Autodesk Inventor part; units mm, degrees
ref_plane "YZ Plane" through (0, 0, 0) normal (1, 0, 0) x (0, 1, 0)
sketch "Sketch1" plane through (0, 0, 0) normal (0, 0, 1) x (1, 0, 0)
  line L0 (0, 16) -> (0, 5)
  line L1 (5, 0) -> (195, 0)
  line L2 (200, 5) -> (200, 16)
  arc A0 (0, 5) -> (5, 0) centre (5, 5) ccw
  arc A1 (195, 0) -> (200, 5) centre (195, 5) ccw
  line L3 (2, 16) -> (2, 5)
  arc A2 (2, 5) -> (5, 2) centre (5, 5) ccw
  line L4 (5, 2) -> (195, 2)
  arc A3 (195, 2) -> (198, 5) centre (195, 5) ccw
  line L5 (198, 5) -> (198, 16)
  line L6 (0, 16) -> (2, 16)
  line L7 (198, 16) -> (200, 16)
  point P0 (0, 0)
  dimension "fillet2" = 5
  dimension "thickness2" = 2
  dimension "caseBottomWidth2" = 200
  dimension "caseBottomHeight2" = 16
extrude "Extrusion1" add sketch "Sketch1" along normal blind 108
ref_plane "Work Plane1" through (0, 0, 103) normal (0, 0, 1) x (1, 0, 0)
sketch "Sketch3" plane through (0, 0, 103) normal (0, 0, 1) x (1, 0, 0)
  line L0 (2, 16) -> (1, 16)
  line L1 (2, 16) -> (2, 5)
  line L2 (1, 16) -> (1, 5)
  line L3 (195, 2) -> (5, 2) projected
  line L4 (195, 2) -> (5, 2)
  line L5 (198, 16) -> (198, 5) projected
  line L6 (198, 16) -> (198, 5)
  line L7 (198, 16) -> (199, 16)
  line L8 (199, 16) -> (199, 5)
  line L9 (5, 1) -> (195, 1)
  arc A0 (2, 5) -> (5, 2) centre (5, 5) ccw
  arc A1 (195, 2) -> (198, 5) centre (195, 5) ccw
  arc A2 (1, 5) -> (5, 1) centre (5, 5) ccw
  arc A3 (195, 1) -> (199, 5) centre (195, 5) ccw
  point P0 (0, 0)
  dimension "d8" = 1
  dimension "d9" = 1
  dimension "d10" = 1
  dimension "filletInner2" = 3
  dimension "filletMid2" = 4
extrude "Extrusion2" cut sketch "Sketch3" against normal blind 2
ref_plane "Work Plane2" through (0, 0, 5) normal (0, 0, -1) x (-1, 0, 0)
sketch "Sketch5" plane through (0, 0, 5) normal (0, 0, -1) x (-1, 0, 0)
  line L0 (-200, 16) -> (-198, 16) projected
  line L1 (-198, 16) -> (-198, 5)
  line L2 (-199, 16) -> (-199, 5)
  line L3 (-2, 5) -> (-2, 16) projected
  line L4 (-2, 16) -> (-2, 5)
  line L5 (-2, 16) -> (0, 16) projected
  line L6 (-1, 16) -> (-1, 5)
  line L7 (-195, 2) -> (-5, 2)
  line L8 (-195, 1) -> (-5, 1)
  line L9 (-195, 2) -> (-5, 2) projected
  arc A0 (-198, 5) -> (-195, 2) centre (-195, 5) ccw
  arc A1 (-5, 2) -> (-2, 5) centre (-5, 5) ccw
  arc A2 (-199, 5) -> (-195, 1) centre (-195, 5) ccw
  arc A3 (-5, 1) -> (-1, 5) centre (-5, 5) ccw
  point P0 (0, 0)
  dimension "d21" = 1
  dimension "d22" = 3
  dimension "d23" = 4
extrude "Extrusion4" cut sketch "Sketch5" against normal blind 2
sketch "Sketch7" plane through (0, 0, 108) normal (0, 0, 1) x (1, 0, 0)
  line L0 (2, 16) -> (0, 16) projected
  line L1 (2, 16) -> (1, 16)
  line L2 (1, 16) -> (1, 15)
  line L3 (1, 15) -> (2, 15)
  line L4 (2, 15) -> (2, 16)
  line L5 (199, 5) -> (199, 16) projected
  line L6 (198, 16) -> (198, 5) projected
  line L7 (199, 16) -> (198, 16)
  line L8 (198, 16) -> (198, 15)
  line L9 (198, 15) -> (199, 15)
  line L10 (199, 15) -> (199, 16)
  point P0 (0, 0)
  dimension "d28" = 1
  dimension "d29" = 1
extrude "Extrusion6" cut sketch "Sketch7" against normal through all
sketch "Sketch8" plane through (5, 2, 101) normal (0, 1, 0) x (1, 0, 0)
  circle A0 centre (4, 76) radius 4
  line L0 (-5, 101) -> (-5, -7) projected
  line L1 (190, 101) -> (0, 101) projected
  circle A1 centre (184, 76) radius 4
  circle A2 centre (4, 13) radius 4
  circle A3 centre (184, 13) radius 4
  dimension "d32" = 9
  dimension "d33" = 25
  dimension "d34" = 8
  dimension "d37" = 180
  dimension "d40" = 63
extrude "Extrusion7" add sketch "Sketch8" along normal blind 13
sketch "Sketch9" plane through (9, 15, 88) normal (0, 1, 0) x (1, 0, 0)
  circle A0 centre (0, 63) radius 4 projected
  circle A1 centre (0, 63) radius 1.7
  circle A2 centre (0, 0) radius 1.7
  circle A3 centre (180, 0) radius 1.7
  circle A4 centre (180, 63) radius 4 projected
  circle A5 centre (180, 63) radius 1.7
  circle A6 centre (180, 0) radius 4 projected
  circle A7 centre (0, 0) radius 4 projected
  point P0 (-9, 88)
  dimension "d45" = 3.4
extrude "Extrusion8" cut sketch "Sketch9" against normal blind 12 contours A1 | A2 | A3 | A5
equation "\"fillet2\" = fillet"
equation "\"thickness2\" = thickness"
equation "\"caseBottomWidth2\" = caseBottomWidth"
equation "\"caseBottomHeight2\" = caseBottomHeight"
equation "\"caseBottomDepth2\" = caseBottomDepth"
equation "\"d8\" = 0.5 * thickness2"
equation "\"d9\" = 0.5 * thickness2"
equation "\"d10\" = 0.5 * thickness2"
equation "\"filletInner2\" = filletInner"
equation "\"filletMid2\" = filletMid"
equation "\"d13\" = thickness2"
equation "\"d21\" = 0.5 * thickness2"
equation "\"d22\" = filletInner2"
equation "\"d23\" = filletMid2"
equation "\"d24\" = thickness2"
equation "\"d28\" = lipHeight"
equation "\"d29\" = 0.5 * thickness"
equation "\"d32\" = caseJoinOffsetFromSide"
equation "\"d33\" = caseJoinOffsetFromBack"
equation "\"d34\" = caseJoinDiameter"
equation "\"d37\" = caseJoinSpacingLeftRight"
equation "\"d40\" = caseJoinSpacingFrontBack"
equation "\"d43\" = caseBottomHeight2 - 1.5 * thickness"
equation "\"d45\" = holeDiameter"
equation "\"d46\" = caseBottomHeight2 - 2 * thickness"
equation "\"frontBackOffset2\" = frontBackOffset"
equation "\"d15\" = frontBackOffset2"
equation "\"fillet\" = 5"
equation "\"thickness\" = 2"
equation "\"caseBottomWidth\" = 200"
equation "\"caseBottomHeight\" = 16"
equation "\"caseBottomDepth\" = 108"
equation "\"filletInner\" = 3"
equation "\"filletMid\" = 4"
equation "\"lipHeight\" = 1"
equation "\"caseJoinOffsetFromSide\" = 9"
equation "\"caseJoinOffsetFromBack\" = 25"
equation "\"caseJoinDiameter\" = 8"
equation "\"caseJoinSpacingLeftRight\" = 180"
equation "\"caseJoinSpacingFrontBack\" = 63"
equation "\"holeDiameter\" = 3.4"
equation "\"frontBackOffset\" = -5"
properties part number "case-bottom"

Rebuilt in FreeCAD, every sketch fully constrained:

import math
import FreeCAD as App
import Part
import Sketcher

V = App.Vector
Q = App.Units.Quantity

doc = App.newDocument("Part")
body = doc.addObject("PartDesign::Body", "Body")

sketch1 = body.newObject("Sketcher::SketchObject", "Sketch")
sketch1.AttachmentSupport = (doc.getObject("XY_Plane"), [""])
sketch1.MapMode = "FlatFace"
sketch1.addGeometry(Part.LineSegment(V(2, 16, 0), V(0, 16, 0)), False)
sketch1.addGeometry(Part.LineSegment(V(0, 16, 0), V(0, 5, 0)), False)
sketch1.addGeometry(Part.ArcOfCircle(Part.Circle(V(5, 5, 0), V(0, 0, 1), 5), math.radians(180), math.radians(270)), False)
sketch1.addGeometry(Part.LineSegment(V(5, 0, 0), V(195, 0, 0)), False)
sketch1.addGeometry(Part.ArcOfCircle(Part.Circle(V(195, 5, 0), V(0, 0, 1), 5), math.radians(-90), math.radians(0)), False)
sketch1.addGeometry(Part.LineSegment(V(200, 5, 0), V(200, 16, 0)), False)
sketch1.addGeometry(Part.LineSegment(V(200, 16, 0), V(198, 16, 0)), False)
sketch1.addGeometry(Part.LineSegment(V(198, 16, 0), V(198, 5, 0)), False)
sketch1.addGeometry(Part.ArcOfCircle(Part.Circle(V(195, 5, 0), V(0, 0, 1), 3), math.radians(-90), math.radians(0)), False)
sketch1.addGeometry(Part.LineSegment(V(195, 2, 0), V(5, 2, 0)), False)
sketch1.addGeometry(Part.ArcOfCircle(Part.Circle(V(5, 5, 0), V(0, 0, 1), 3), math.radians(180), math.radians(270)), False)
sketch1.addGeometry(Part.LineSegment(V(2, 5, 0), V(2, 16, 0)), False)
sketch1.addConstraint(Sketcher.Constraint("Coincident", 0, 2, 1, 1))
sketch1.addConstraint(Sketcher.Constraint("Tangent", 1, 2, 2, 1))
sketch1.addConstraint(Sketcher.Constraint("Tangent", 2, 2, 3, 1))
sketch1.addConstraint(Sketcher.Constraint("Tangent", 3, 2, 4, 1))
sketch1.addConstraint(Sketcher.Constraint("Tangent", 4, 2, 5, 1))
sketch1.addConstraint(Sketcher.Constraint("Coincident", 5, 2, 6, 1))
sketch1.addConstraint(Sketcher.Constraint("Coincident", 6, 2, 7, 1))
sketch1.addConstraint(Sketcher.Constraint("Tangent", 7, 2, 8, 2))
sketch1.addConstraint(Sketcher.Constraint("Tangent", 8, 1, 9, 1))
sketch1.addConstraint(Sketcher.Constraint("Tangent", 9, 2, 10, 2))
sketch1.addConstraint(Sketcher.Constraint("Tangent", 10, 1, 11, 1))
sketch1.addConstraint(Sketcher.Constraint("Coincident", 11, 2, 0, 1))
sketch1.addConstraint(Sketcher.Constraint("Horizontal", 0))
sketch1.addConstraint(Sketcher.Constraint("Vertical", 1))
sketch1.addConstraint(Sketcher.Constraint("Horizontal", 3))
sketch1.addConstraint(Sketcher.Constraint("Vertical", 5))
sketch1.addConstraint(Sketcher.Constraint("Horizontal", 6))
sketch1.addConstraint(Sketcher.Constraint("Vertical", 7))
sketch1.addConstraint(Sketcher.Constraint("Horizontal", 9))
sketch1.addConstraint(Sketcher.Constraint("Vertical", 11))
sketch1.addConstraint(Sketcher.Constraint("Coincident", 8, 3, 4, 3))
sketch1.addConstraint(Sketcher.Constraint("Coincident", 10, 3, 2, 3))
sketch1.addConstraint(Sketcher.Constraint("Equal", 2, 4))
sketch1.addConstraint(Sketcher.Constraint("PointOnObject", 0, 2, -2))
sketch1.addConstraint(Sketcher.Constraint("PointOnObject", 2, 2, -1))
sketch1.addConstraint(Sketcher.Constraint("Horizontal", 0, 2, 5, 2))
sketch1.addConstraint(Sketcher.Constraint("Radius", 2, Q("5 mm")))
sketch1.addConstraint(Sketcher.Constraint("DistanceX", 0, 2, 0, 1, Q("2 mm")))
sketch1.addConstraint(Sketcher.Constraint("DistanceY", -1, 1, 0, 2, Q("16 mm")))
sketch1.addConstraint(Sketcher.Constraint("DistanceX", -1, 1, 4, 2, Q("200 mm")))
pad1 = body.newObject("PartDesign::Pad", "Pad")
pad1.Profile = sketch1
pad1.Length = 108

sketch2 = body.newObject("Sketcher::SketchObject", "Sketch001")
sketch2.AttachmentSupport = (doc.getObject("XY_Plane"), [""])
sketch2.MapMode = "FlatFace"
sketch2.AttachmentOffset = App.Placement(V(0, 0, 103), App.Rotation())
sketch2.addGeometry(Part.LineSegment(V(2, 5, 0), V(2, 16, 0)), False)
sketch2.addGeometry(Part.LineSegment(V(2, 16, 0), V(1, 16, 0)), False)
sketch2.addGeometry(Part.LineSegment(V(1, 16, 0), V(1, 5, 0)), False)
sketch2.addGeometry(Part.ArcOfCircle(Part.Circle(V(5, 5, 0), V(0, 0, 1), 4), math.radians(180), math.radians(270)), False)
sketch2.addGeometry(Part.LineSegment(V(5, 1, 0), V(195, 1, 0)), False)
sketch2.addGeometry(Part.ArcOfCircle(Part.Circle(V(195, 5, 0), V(0, 0, 1), 4), math.radians(-90), math.radians(0)), False)
sketch2.addGeometry(Part.LineSegment(V(199, 5, 0), V(199, 16, 0)), False)
sketch2.addGeometry(Part.LineSegment(V(199, 16, 0), V(198, 16, 0)), False)
sketch2.addGeometry(Part.LineSegment(V(198, 16, 0), V(198, 5, 0)), False)
sketch2.addGeometry(Part.ArcOfCircle(Part.Circle(V(195, 5, 0), V(0, 0, 1), 3), math.radians(-90), math.radians(0)), False)
sketch2.addGeometry(Part.LineSegment(V(195, 2, 0), V(5, 2, 0)), False)
sketch2.addGeometry(Part.ArcOfCircle(Part.Circle(V(5, 5, 0), V(0, 0, 1), 3), math.radians(180), math.radians(270)), False)
sketch2.addConstraint(Sketcher.Constraint("Coincident", 0, 2, 1, 1))
sketch2.addConstraint(Sketcher.Constraint("Coincident", 1, 2, 2, 1))
sketch2.addConstraint(Sketcher.Constraint("Tangent", 2, 2, 3, 1))
sketch2.addConstraint(Sketcher.Constraint("Tangent", 3, 2, 4, 1))
sketch2.addConstraint(Sketcher.Constraint("Tangent", 4, 2, 5, 1))
sketch2.addConstraint(Sketcher.Constraint("Tangent", 5, 2, 6, 1))
sketch2.addConstraint(Sketcher.Constraint("Coincident", 6, 2, 7, 1))
sketch2.addConstraint(Sketcher.Constraint("Coincident", 7, 2, 8, 1))
sketch2.addConstraint(Sketcher.Constraint("Tangent", 8, 2, 9, 2))
sketch2.addConstraint(Sketcher.Constraint("Tangent", 9, 1, 10, 1))
sketch2.addConstraint(Sketcher.Constraint("Tangent", 10, 2, 11, 2))
sketch2.addConstraint(Sketcher.Constraint("Tangent", 11, 1, 0, 1))
sketch2.addConstraint(Sketcher.Constraint("Vertical", 0))
sketch2.addConstraint(Sketcher.Constraint("Horizontal", 1))
sketch2.addConstraint(Sketcher.Constraint("Vertical", 2))
sketch2.addConstraint(Sketcher.Constraint("Horizontal", 4))
sketch2.addConstraint(Sketcher.Constraint("Vertical", 6))
sketch2.addConstraint(Sketcher.Constraint("Horizontal", 7))
sketch2.addConstraint(Sketcher.Constraint("Vertical", 8))
sketch2.addConstraint(Sketcher.Constraint("Horizontal", 10))
sketch2.addConstraint(Sketcher.Constraint("Coincident", 9, 3, 5, 3))
sketch2.addConstraint(Sketcher.Constraint("Coincident", 11, 3, 3, 3))
sketch2.addConstraint(Sketcher.Constraint("Equal", 3, 5))
sketch2.addConstraint(Sketcher.Constraint("Horizontal", 1, 2, 6, 2))
sketch2.addConstraint(Sketcher.Constraint("Radius", 3, Q("4 mm")))
sketch2.addConstraint(Sketcher.Constraint("Radius", 9, Q("3 mm")))
sketch2.addConstraint(Sketcher.Constraint("DistanceX", -1, 1, 1, 2, Q("1 mm")))
sketch2.addConstraint(Sketcher.Constraint("DistanceY", -1, 1, 3, 2, Q("1 mm")))
sketch2.addConstraint(Sketcher.Constraint("DistanceX", 4, 1, 4, 2, Q("190 mm")))
sketch2.addConstraint(Sketcher.Constraint("DistanceY", 0, 1, 0, 2, Q("11 mm")))
pocket1 = body.newObject("PartDesign::Pocket", "Pocket")
pocket1.Profile = sketch2
pocket1.Length = 2

sketch3 = body.newObject("Sketcher::SketchObject", "Sketch002")
sketch3.AttachmentSupport = (doc.getObject("XY_Plane"), [""])
sketch3.MapMode = "FlatFace"
sketch3.AttachmentOffset = App.Placement(V(0, 0, 5), App.Rotation())
sketch3.addGeometry(Part.LineSegment(V(198, 16, 0), V(199, 16, 0)), False)
sketch3.addGeometry(Part.LineSegment(V(199, 16, 0), V(199, 5, 0)), False)
sketch3.addGeometry(Part.ArcOfCircle(Part.Circle(V(195, 5, 0), V(0, 0, 1), 4), math.radians(-90), math.radians(0)), False)
sketch3.addGeometry(Part.LineSegment(V(195, 1, 0), V(5, 1, 0)), False)
sketch3.addGeometry(Part.ArcOfCircle(Part.Circle(V(5, 5, 0), V(0, 0, 1), 4), math.radians(180), math.radians(270)), False)
sketch3.addGeometry(Part.LineSegment(V(1, 5, 0), V(1, 16, 0)), False)
sketch3.addGeometry(Part.LineSegment(V(1, 16, 0), V(2, 16, 0)), False)
sketch3.addGeometry(Part.LineSegment(V(2, 16, 0), V(2, 5, 0)), False)
sketch3.addGeometry(Part.ArcOfCircle(Part.Circle(V(5, 5, 0), V(0, 0, 1), 3), math.radians(180), math.radians(270)), False)
sketch3.addGeometry(Part.LineSegment(V(5, 2, 0), V(195, 2, 0)), False)
sketch3.addGeometry(Part.ArcOfCircle(Part.Circle(V(195, 5, 0), V(0, 0, 1), 3), math.radians(-90), math.radians(0)), False)
sketch3.addGeometry(Part.LineSegment(V(198, 5, 0), V(198, 16, 0)), False)
sketch3.addConstraint(Sketcher.Constraint("Coincident", 0, 2, 1, 1))
sketch3.addConstraint(Sketcher.Constraint("Tangent", 1, 2, 2, 2))
sketch3.addConstraint(Sketcher.Constraint("Tangent", 2, 1, 3, 1))
sketch3.addConstraint(Sketcher.Constraint("Tangent", 3, 2, 4, 2))
sketch3.addConstraint(Sketcher.Constraint("Tangent", 4, 1, 5, 1))
sketch3.addConstraint(Sketcher.Constraint("Coincident", 5, 2, 6, 1))
sketch3.addConstraint(Sketcher.Constraint("Coincident", 6, 2, 7, 1))
sketch3.addConstraint(Sketcher.Constraint("Tangent", 7, 2, 8, 1))
sketch3.addConstraint(Sketcher.Constraint("Tangent", 8, 2, 9, 1))
sketch3.addConstraint(Sketcher.Constraint("Tangent", 9, 2, 10, 1))
sketch3.addConstraint(Sketcher.Constraint("Tangent", 10, 2, 11, 1))
sketch3.addConstraint(Sketcher.Constraint("Coincident", 11, 2, 0, 1))
sketch3.addConstraint(Sketcher.Constraint("Horizontal", 0))
sketch3.addConstraint(Sketcher.Constraint("Vertical", 1))
sketch3.addConstraint(Sketcher.Constraint("Horizontal", 3))
sketch3.addConstraint(Sketcher.Constraint("Vertical", 5))
sketch3.addConstraint(Sketcher.Constraint("Horizontal", 6))
sketch3.addConstraint(Sketcher.Constraint("Vertical", 7))
sketch3.addConstraint(Sketcher.Constraint("Horizontal", 9))
sketch3.addConstraint(Sketcher.Constraint("Vertical", 11))
sketch3.addConstraint(Sketcher.Constraint("Coincident", 8, 3, 4, 3))
sketch3.addConstraint(Sketcher.Constraint("Coincident", 10, 3, 2, 3))
sketch3.addConstraint(Sketcher.Constraint("Equal", 2, 4))
sketch3.addConstraint(Sketcher.Constraint("Horizontal", 0, 2, 5, 2))
sketch3.addConstraint(Sketcher.Constraint("Radius", 2, Q("4 mm")))
sketch3.addConstraint(Sketcher.Constraint("Radius", 8, Q("3 mm")))
sketch3.addConstraint(Sketcher.Constraint("DistanceY", -1, 1, 2, 1, Q("1 mm")))
sketch3.addConstraint(Sketcher.Constraint("DistanceX", -1, 1, 4, 1, Q("1 mm")))
sketch3.addConstraint(Sketcher.Constraint("DistanceX", 3, 2, 3, 1, Q("190 mm")))
sketch3.addConstraint(Sketcher.Constraint("DistanceY", 1, 2, 1, 1, Q("11 mm")))
pocket2 = body.newObject("PartDesign::Pocket", "Pocket001")
pocket2.Profile = sketch3
pocket2.Length = 2
pocket2.Reversed = True

sketch4 = body.newObject("Sketcher::SketchObject", "Sketch003")
sketch4.AttachmentSupport = (doc.getObject("XY_Plane"), [""])
sketch4.MapMode = "FlatFace"
sketch4.AttachmentOffset = App.Placement(V(0, 0, 108), App.Rotation())
sketch4.addGeometry(Part.LineSegment(V(2, 15, 0), V(2, 16, 0)), False)
sketch4.addGeometry(Part.LineSegment(V(2, 16, 0), V(1, 16, 0)), False)
sketch4.addGeometry(Part.LineSegment(V(1, 16, 0), V(1, 15, 0)), False)
sketch4.addGeometry(Part.LineSegment(V(1, 15, 0), V(2, 15, 0)), False)
sketch4.addGeometry(Part.LineSegment(V(198, 15, 0), V(199, 15, 0)), False)
sketch4.addGeometry(Part.LineSegment(V(199, 15, 0), V(199, 16, 0)), False)
sketch4.addGeometry(Part.LineSegment(V(199, 16, 0), V(198, 16, 0)), False)
sketch4.addGeometry(Part.LineSegment(V(198, 16, 0), V(198, 15, 0)), False)
sketch4.addConstraint(Sketcher.Constraint("Coincident", 0, 2, 1, 1))
sketch4.addConstraint(Sketcher.Constraint("Coincident", 1, 2, 2, 1))
sketch4.addConstraint(Sketcher.Constraint("Coincident", 2, 2, 3, 1))
sketch4.addConstraint(Sketcher.Constraint("Coincident", 3, 2, 0, 1))
sketch4.addConstraint(Sketcher.Constraint("Coincident", 4, 2, 5, 1))
sketch4.addConstraint(Sketcher.Constraint("Coincident", 5, 2, 6, 1))
sketch4.addConstraint(Sketcher.Constraint("Coincident", 6, 2, 7, 1))
sketch4.addConstraint(Sketcher.Constraint("Coincident", 7, 2, 4, 1))
sketch4.addConstraint(Sketcher.Constraint("Vertical", 0))
sketch4.addConstraint(Sketcher.Constraint("Horizontal", 1))
sketch4.addConstraint(Sketcher.Constraint("Vertical", 2))
sketch4.addConstraint(Sketcher.Constraint("Horizontal", 3))
sketch4.addConstraint(Sketcher.Constraint("Horizontal", 4))
sketch4.addConstraint(Sketcher.Constraint("Vertical", 5))
sketch4.addConstraint(Sketcher.Constraint("Horizontal", 6))
sketch4.addConstraint(Sketcher.Constraint("Vertical", 7))
sketch4.addConstraint(Sketcher.Constraint("Horizontal", 3, 2, 4, 2))
sketch4.addConstraint(Sketcher.Constraint("Horizontal", 1, 2, 5, 2))
sketch4.addConstraint(Sketcher.Constraint("Equal", 3, 4))
sketch4.addConstraint(Sketcher.Constraint("Equal", 6, 0))
sketch4.addConstraint(Sketcher.Constraint("DistanceX", 1, 2, 1, 1, Q("1 mm")))
sketch4.addConstraint(Sketcher.Constraint("DistanceX", -1, 1, 1, 2, Q("1 mm")))
sketch4.addConstraint(Sketcher.Constraint("DistanceY", -1, 1, 0, 2, Q("16 mm")))
sketch4.addConstraint(Sketcher.Constraint("DistanceX", -1, 1, 4, 2, Q("199 mm")))
pocket3 = body.newObject("PartDesign::Pocket", "Pocket002")
pocket3.Profile = sketch4
pocket3.Type = "ThroughAll"

sketch5 = body.newObject("Sketcher::SketchObject", "Sketch004")
sketch5.AttachmentSupport = (doc.getObject("XZ_Plane"), [""])
sketch5.MapMode = "FlatFace"
sketch5.AttachmentOffset = App.Placement(V(0, 0, -2), App.Rotation())
sketch5.addGeometry(Part.Circle(V(9, 25, 0), V(0, 0, 1), 4), False)
sketch5.addGeometry(Part.Circle(V(189, 25, 0), V(0, 0, 1), 4), False)
sketch5.addGeometry(Part.Circle(V(9, 88, 0), V(0, 0, 1), 4), False)
sketch5.addGeometry(Part.Circle(V(189, 88, 0), V(0, 0, 1), 4), False)
sketch5.addConstraint(Sketcher.Constraint("Equal", 0, 1))
sketch5.addConstraint(Sketcher.Constraint("Equal", 1, 2))
sketch5.addConstraint(Sketcher.Constraint("Equal", 2, 3))
sketch5.addConstraint(Sketcher.Constraint("Horizontal", 0, 3, 1, 3))
sketch5.addConstraint(Sketcher.Constraint("Horizontal", 2, 3, 3, 3))
sketch5.addConstraint(Sketcher.Constraint("Vertical", 0, 3, 2, 3))
sketch5.addConstraint(Sketcher.Constraint("Vertical", 1, 3, 3, 3))
sketch5.addConstraint(Sketcher.Constraint("Diameter", 0, Q("8 mm")))
sketch5.addConstraint(Sketcher.Constraint("DistanceX", -1, 1, 0, 3, Q("9 mm")))
sketch5.addConstraint(Sketcher.Constraint("DistanceY", -1, 1, 0, 3, Q("25 mm")))
sketch5.addConstraint(Sketcher.Constraint("DistanceX", 0, 3, 1, 3, Q("180 mm")))
sketch5.addConstraint(Sketcher.Constraint("DistanceY", 0, 3, 2, 3, Q("63 mm")))
pad2 = body.newObject("PartDesign::Pad", "Pad001")
pad2.Profile = sketch5
pad2.Length = 13
pad2.Reversed = True

sketch6 = body.newObject("Sketcher::SketchObject", "Sketch005")
sketch6.AttachmentSupport = (doc.getObject("XZ_Plane"), [""])
sketch6.MapMode = "FlatFace"
sketch6.AttachmentOffset = App.Placement(V(0, 0, -15), App.Rotation())
sketch6.addGeometry(Part.Circle(V(9, 25, 0), V(0, 0, 1), 1.7), False)
sketch6.addGeometry(Part.Circle(V(9, 88, 0), V(0, 0, 1), 1.7), False)
sketch6.addGeometry(Part.Circle(V(189, 88, 0), V(0, 0, 1), 1.7), False)
sketch6.addGeometry(Part.Circle(V(189, 25, 0), V(0, 0, 1), 1.7), False)
sketch6.addConstraint(Sketcher.Constraint("Equal", 0, 1))
sketch6.addConstraint(Sketcher.Constraint("Equal", 1, 2))
sketch6.addConstraint(Sketcher.Constraint("Equal", 2, 3))
sketch6.addConstraint(Sketcher.Constraint("Horizontal", 1, 3, 2, 3))
sketch6.addConstraint(Sketcher.Constraint("Horizontal", 0, 3, 3, 3))
sketch6.addConstraint(Sketcher.Constraint("Vertical", 0, 3, 1, 3))
sketch6.addConstraint(Sketcher.Constraint("Vertical", 2, 3, 3, 3))
sketch6.addConstraint(Sketcher.Constraint("Diameter", 0, Q("3.4 mm")))
sketch6.addConstraint(Sketcher.Constraint("DistanceX", -1, 1, 0, 3, Q("9 mm")))
sketch6.addConstraint(Sketcher.Constraint("DistanceY", -1, 1, 0, 3, Q("25 mm")))
sketch6.addConstraint(Sketcher.Constraint("DistanceY", -1, 1, 1, 3, Q("88 mm")))
sketch6.addConstraint(Sketcher.Constraint("DistanceX", -1, 1, 2, 3, Q("189 mm")))
pocket4 = body.newObject("PartDesign::Pocket", "Pocket003")
pocket4.Profile = sketch6
pocket4.Length = 12
pocket4.Reversed = True

doc.recompute()
